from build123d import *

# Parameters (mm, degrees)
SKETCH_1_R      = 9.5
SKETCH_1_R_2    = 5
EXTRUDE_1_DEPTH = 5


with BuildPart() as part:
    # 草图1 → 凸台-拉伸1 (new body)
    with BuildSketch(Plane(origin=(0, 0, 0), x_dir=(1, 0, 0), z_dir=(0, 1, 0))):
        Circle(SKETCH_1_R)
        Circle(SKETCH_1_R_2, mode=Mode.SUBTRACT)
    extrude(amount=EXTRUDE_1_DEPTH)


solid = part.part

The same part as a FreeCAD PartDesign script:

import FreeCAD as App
import Part
import Sketcher
from FreeCAD import Vector
Q = App.Units.Quantity

doc = App.newDocument("Part")
body = doc.addObject("PartDesign::Body", "Body")

sketch1 = doc.addObject("Sketcher::SketchObject", "Sketch")
body.addObject(sketch1)
sketch1.AttachmentSupport = (doc.XZ_Plane, [""])
sketch1.MapMode = "FlatFace"
sketch1.addGeometry(Part.Circle(Vector(0, 0, 0), Vector(0, 0, 1), 10), False)
sketch1.addGeometry(Part.Circle(Vector(0, 0, 0), Vector(0, 0, 1), 5), False)
sketch1.addConstraint(Sketcher.Constraint("Coincident", 0, 3, -1, 1))
sketch1.addConstraint(Sketcher.Constraint("Coincident", 1, 3, -1, 1))
sketch1.addConstraint(Sketcher.Constraint("Diameter", 0, Q("19 mm")))
sketch1.addConstraint(Sketcher.Constraint("Diameter", 1, Q("10 mm")))
pad1 = doc.addObject("PartDesign::Pad", "Pad")
body.addObject(pad1)
pad1.Profile = sketch1
pad1.Length = 5
pad1.Reversed = True

doc.recompute()
